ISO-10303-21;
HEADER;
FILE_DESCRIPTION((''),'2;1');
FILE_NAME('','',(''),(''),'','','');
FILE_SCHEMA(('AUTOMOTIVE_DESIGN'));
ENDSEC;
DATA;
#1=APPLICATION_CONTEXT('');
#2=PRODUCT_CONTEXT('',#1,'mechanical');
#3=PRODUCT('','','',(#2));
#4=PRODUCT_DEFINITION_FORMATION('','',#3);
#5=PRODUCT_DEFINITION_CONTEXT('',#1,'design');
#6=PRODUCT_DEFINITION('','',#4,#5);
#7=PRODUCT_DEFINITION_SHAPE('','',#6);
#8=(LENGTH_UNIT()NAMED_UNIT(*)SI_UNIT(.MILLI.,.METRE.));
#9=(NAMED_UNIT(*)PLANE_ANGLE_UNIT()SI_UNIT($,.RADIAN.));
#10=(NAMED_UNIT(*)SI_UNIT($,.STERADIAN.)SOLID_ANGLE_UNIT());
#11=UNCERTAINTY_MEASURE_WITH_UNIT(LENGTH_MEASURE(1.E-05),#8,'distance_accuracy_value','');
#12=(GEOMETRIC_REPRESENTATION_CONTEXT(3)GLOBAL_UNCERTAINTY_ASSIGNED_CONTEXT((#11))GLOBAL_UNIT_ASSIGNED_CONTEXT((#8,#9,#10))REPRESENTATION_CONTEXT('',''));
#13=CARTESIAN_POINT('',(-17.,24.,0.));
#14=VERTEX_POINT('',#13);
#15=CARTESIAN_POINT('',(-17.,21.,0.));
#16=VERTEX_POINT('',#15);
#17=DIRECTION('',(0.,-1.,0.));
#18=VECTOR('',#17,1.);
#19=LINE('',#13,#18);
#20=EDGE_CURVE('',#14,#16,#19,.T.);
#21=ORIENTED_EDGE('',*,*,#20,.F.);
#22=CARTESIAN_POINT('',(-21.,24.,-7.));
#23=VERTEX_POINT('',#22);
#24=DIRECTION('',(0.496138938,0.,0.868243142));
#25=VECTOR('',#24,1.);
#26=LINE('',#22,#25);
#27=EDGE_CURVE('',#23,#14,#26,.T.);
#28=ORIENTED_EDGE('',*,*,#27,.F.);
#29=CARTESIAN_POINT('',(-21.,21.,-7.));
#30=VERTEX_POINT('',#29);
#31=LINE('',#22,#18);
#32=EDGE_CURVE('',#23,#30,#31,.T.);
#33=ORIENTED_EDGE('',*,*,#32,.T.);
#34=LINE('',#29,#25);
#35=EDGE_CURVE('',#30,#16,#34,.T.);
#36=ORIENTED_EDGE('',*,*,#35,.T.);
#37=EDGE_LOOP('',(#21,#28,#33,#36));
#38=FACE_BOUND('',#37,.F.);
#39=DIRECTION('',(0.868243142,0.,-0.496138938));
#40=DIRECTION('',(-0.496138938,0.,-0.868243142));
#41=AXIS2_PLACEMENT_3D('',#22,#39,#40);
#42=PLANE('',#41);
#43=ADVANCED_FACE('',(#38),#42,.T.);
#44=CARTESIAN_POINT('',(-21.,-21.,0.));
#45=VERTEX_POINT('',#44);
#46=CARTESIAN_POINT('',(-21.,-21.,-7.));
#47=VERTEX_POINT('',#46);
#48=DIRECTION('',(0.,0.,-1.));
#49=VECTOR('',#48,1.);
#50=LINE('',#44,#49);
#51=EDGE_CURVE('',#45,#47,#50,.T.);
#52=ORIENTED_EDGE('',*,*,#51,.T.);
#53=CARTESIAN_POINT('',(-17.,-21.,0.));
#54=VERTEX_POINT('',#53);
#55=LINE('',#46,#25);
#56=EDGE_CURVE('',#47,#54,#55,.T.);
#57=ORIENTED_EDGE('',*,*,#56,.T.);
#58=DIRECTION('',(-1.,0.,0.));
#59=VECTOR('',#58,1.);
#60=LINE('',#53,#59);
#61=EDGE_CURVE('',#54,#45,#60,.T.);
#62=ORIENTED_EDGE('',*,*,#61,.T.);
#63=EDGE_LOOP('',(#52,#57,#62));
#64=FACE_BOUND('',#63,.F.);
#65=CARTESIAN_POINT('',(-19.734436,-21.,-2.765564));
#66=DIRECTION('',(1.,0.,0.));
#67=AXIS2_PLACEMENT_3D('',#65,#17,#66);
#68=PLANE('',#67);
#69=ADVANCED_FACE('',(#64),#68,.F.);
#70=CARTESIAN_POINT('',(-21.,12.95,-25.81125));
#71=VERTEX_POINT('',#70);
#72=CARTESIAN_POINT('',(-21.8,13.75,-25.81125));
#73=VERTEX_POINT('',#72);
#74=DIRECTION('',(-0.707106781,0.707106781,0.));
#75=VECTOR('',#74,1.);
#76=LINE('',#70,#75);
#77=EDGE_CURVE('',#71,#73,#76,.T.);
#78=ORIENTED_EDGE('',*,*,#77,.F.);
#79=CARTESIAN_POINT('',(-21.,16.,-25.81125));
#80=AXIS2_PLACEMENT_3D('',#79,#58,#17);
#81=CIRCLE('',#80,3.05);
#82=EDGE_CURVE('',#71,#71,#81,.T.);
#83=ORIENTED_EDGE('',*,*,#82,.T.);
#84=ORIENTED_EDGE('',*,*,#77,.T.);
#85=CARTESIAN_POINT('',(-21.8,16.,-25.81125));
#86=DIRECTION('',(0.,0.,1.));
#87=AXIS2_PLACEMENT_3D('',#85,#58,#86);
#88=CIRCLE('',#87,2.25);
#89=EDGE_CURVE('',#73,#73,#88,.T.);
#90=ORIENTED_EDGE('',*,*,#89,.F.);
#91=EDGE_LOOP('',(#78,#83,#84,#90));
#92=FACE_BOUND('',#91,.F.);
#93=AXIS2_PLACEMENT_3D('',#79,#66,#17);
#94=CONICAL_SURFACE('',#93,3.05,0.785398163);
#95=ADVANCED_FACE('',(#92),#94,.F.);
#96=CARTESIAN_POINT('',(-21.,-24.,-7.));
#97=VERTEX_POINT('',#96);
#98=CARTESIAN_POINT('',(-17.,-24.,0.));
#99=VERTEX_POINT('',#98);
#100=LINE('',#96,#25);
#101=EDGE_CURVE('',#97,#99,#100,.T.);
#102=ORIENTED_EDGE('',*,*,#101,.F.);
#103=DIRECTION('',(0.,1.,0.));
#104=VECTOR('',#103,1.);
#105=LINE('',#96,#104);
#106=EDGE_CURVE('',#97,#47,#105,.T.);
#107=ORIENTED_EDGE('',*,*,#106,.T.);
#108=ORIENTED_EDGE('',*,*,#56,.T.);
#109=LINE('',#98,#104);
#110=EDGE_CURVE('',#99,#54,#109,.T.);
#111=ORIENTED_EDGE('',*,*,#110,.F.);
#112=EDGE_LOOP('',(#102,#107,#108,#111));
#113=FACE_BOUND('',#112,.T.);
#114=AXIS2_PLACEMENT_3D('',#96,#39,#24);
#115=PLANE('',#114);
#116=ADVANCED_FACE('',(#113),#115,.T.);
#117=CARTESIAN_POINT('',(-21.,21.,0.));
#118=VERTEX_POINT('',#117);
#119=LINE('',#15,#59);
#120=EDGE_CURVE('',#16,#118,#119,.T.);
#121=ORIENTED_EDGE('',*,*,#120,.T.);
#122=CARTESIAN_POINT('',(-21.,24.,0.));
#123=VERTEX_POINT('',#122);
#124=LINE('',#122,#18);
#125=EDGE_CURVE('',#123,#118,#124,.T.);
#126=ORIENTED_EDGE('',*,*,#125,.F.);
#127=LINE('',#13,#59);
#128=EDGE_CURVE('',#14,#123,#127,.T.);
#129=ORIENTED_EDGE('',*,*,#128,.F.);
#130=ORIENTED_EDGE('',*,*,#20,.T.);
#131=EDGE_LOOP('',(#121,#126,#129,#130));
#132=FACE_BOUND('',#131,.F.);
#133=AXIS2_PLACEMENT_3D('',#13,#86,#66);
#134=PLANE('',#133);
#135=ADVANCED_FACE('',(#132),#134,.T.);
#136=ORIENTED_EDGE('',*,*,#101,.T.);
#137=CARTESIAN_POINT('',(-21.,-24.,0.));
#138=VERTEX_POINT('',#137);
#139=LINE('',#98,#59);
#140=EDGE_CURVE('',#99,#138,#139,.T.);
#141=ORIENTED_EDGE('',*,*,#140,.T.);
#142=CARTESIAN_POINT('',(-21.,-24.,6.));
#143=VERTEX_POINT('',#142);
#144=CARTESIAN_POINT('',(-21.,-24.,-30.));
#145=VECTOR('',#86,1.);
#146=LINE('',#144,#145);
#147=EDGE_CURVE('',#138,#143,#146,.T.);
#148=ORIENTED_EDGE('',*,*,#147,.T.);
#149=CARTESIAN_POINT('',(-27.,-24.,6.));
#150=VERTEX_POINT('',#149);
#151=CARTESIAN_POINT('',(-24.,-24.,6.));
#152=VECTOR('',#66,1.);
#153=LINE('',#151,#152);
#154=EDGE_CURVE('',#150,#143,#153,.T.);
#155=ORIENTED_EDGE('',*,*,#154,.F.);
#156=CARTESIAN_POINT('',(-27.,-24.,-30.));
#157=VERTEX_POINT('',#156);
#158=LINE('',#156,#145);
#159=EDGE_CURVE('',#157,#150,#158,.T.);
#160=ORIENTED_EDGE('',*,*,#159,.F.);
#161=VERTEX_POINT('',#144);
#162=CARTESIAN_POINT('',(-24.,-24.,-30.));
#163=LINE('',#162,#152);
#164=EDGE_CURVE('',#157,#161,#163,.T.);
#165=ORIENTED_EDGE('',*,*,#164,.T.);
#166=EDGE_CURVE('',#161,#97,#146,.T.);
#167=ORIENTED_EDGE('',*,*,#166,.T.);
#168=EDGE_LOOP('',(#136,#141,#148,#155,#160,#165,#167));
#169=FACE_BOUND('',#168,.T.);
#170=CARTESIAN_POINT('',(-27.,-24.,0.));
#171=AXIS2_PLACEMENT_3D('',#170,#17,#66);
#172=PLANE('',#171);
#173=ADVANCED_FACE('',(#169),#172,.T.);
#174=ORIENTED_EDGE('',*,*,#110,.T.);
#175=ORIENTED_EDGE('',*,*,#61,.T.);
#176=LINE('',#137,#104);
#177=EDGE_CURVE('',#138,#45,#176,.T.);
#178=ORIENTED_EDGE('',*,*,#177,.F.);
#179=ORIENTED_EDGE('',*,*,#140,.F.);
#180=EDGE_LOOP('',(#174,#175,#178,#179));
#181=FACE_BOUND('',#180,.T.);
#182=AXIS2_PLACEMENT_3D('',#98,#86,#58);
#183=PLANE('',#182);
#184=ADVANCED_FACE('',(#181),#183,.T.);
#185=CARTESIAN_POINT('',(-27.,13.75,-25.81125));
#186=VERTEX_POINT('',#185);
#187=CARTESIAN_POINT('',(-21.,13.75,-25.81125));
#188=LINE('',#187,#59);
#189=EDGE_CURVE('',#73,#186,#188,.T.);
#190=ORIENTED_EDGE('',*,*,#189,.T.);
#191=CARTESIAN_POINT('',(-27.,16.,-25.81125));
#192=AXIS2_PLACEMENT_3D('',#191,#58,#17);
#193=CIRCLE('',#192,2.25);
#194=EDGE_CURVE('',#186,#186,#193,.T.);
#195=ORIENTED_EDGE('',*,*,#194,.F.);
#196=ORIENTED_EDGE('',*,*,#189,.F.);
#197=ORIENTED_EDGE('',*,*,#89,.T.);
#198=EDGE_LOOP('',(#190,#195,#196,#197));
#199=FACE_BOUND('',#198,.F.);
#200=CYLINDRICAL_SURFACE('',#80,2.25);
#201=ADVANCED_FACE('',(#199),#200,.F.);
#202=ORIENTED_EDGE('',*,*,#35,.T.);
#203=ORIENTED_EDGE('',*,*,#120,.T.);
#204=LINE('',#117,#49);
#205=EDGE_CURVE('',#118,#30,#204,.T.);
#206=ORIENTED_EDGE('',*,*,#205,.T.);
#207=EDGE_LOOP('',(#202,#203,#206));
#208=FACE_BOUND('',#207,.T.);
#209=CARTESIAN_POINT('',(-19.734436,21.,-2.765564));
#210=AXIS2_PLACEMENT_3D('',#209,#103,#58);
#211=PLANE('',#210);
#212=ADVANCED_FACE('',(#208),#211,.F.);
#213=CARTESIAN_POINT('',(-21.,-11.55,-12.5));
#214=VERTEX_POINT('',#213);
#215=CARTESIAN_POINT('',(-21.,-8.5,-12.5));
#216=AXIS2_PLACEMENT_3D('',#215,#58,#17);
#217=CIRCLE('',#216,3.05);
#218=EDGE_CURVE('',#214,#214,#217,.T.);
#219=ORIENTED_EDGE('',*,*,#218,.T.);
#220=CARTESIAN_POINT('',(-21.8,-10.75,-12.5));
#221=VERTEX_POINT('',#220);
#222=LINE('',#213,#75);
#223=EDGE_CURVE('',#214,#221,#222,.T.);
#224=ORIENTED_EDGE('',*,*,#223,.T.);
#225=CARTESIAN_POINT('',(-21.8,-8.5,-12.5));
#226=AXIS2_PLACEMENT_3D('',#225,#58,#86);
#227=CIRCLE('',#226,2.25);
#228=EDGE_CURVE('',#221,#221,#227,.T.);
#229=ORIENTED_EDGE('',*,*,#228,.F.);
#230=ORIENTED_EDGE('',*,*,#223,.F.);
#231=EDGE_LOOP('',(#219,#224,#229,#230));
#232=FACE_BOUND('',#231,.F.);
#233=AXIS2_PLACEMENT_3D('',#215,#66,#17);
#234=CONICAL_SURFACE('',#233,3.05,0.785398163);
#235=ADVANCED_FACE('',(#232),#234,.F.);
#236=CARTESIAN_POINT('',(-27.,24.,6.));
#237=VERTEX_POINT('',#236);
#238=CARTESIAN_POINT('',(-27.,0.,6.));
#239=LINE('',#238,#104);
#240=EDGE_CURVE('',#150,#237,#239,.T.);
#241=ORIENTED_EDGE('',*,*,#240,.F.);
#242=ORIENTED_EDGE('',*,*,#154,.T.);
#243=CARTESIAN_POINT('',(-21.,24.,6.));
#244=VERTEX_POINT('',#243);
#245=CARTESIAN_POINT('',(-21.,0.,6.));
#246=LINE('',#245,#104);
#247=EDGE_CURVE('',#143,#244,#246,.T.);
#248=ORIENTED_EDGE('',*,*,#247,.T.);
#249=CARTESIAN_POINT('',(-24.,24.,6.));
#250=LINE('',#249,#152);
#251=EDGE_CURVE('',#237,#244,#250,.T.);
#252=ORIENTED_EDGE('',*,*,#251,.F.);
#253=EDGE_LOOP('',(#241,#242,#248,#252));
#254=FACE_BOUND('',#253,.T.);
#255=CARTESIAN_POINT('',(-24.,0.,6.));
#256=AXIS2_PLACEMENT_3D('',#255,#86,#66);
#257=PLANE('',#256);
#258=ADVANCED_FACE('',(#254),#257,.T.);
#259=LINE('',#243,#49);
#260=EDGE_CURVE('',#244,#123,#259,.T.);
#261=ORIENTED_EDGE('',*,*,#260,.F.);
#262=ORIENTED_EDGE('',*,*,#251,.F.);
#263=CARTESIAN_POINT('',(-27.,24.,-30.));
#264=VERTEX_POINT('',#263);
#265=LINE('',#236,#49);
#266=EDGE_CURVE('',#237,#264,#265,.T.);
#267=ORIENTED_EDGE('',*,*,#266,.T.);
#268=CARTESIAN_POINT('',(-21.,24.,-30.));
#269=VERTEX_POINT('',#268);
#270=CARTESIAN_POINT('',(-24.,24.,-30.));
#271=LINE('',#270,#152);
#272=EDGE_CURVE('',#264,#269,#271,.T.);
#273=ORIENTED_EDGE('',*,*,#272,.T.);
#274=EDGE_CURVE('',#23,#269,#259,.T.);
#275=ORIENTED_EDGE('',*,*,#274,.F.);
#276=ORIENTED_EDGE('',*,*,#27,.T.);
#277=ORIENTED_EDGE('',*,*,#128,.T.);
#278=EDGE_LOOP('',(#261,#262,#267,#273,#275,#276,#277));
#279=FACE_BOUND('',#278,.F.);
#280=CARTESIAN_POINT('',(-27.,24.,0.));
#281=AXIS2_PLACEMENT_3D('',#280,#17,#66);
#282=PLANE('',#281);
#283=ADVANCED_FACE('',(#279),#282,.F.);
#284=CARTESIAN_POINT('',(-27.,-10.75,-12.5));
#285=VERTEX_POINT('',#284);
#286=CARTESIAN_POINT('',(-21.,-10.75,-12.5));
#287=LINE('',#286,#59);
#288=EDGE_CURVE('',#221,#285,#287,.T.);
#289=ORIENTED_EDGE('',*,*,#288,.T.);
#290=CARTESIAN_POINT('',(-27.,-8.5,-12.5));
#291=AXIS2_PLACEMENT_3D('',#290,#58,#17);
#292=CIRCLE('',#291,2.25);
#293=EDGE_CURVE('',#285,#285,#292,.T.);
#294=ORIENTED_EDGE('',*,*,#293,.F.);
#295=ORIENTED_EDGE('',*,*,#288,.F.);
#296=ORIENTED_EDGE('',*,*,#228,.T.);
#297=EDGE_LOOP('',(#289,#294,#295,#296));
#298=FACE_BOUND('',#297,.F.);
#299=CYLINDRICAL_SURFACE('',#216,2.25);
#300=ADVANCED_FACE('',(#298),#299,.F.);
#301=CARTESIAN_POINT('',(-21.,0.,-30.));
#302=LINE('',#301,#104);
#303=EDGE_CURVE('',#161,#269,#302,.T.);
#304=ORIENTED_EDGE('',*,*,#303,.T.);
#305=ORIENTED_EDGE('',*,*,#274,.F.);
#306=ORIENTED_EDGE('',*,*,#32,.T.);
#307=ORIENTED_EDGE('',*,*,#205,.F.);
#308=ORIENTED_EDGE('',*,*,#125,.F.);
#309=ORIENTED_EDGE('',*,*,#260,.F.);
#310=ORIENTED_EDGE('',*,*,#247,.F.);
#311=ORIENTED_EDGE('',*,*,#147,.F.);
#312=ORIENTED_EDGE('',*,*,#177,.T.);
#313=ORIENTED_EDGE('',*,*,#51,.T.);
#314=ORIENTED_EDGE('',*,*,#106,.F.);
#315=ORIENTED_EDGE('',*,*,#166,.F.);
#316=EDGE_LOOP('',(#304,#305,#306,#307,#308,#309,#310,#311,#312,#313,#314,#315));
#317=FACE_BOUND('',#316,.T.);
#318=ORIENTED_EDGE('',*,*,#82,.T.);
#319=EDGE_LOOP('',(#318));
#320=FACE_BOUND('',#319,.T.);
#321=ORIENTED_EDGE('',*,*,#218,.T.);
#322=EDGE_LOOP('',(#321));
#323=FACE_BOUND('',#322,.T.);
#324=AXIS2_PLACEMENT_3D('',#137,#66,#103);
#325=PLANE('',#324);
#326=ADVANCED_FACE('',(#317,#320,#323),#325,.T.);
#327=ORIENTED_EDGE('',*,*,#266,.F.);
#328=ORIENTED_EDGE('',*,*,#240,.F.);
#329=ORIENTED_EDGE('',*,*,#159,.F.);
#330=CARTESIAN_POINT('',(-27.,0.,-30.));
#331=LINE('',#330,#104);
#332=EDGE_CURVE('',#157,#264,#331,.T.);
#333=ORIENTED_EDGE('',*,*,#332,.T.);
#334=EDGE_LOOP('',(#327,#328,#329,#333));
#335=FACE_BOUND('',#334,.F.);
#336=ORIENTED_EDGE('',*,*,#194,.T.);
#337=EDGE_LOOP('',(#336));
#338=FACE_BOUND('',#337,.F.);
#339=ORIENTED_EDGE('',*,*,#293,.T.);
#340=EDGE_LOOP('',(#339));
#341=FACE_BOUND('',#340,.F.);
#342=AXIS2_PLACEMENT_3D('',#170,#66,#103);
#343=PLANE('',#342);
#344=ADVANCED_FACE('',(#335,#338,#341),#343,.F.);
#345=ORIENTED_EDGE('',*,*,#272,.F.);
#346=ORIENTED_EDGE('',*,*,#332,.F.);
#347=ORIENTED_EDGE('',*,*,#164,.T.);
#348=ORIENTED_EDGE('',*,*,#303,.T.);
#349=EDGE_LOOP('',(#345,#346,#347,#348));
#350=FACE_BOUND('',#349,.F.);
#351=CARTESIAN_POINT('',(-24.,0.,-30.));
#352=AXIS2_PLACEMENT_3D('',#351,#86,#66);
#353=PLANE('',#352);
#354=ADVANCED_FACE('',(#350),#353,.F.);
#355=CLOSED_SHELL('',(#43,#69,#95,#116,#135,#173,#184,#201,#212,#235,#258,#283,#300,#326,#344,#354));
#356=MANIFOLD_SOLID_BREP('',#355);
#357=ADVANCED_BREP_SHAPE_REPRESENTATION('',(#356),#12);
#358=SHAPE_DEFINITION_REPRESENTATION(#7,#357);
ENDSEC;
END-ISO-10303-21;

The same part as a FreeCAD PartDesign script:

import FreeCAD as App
import Part
import Sketcher

V = App.Vector
Q = App.Units.Quantity


def add_polygon(sketch, points):
    """Adds a closed chain of lines whose ends are joined by coincident constraints."""
    first, n = sketch.GeometryCount, len(points)
    for a, b in zip(points, points[1:] + points[:1]):
        sketch.addGeometry(Part.LineSegment(App.Vector(*a, 0), App.Vector(*b, 0)), False)
    for i in range(n):
        sketch.addConstraint(Sketcher.Constraint("Coincident", first + i, 2, first + (i + 1) % n, 1))

doc = App.newDocument("Part")
params = doc.addObject("Spreadsheet::Sheet", "Params")
for row, (alias, value) in enumerate([
    ("sketch1_width", "6 mm"),
    ("sketch1_height", "48 mm"),
    ("pad1_length", "6 mm"),
    ("pad1_length2", "30 mm"),
    ("sketch2_width", "4 mm"),
    ("sketch2_height", "7 mm"),
    ("pad2_length", "3 mm"),
    ("sketch3_diameter", "4.5 mm"),
    ("hole_diameter", "4.5 mm"),
    ("hole_depth", "25 mm"),
    ("hole_csink_diameter", "6.1 mm"),
], start=1):
    params.set(f"A{row}", alias)
    params.set(f"B{row}", "=" + value)
    params.setAlias(f"B{row}", alias)

body = doc.addObject("PartDesign::Body", "Body")

# Sketch on XY plane
sketch1 = body.newObject("Sketcher::SketchObject", "Sketch")
sketch1.AttachmentSupport = (doc.getObject("XY_Plane"), [""])
sketch1.MapMode = "FlatFace"
add_polygon(sketch1, [(-27, 24), (-27, -24), (-21, -24), (-21, 24)])  # lines 0-3
sketch1.addConstraint(Sketcher.Constraint("Vertical", 0))
sketch1.addConstraint(Sketcher.Constraint("Horizontal", 1))
sketch1.addConstraint(Sketcher.Constraint("Vertical", 2))
sketch1.addConstraint(Sketcher.Constraint("Horizontal", 3))
sketch1.addConstraint(Sketcher.Constraint("DistanceX", 1, 1, 1, 2, Q("6 mm")))
sketch1.addConstraint(Sketcher.Constraint("DistanceY", 0, 2, 0, 1, Q("48 mm")))
sketch1.addConstraint(Sketcher.Constraint("DistanceX", 0, 2, -1, 1, Q("27 mm")))
sketch1.addConstraint(Sketcher.Constraint("DistanceY", 0, 2, -1, 1, Q("24 mm")))
sketch1.setExpression("Constraints[8]", "Params.sketch1_width")
sketch1.setExpression("Constraints[9]", "Params.sketch1_height")
pad1 = body.newObject("PartDesign::Pad", "Pad")
pad1.Profile = sketch1
pad1.Type = "TwoLengths"
pad1.setExpression("Length", "Params.pad1_length")
pad1.setExpression("Length2", "Params.pad1_length2")

# Sketch on XZ plane
sketch2 = body.newObject("Sketcher::SketchObject", "Sketch001")
sketch2.AttachmentSupport = (doc.getObject("XZ_Plane"), [""])
sketch2.MapMode = "FlatFace"
sketch2.AttachmentOffset = App.Placement(V(0, 0, 24), App.Rotation())
add_polygon(sketch2, [(-21, 0), (-21, -7), (-17, 0)])  # lines 0-2
sketch2.addConstraint(Sketcher.Constraint("Vertical", 0))
sketch2.addConstraint(Sketcher.Constraint("Horizontal", 2))
sketch2.addConstraint(Sketcher.Constraint("PointOnObject", 1, 2, -1))
sketch2.addConstraint(Sketcher.Constraint("DistanceX", 2, 2, 2, 1, Q("4 mm")))
sketch2.addConstraint(Sketcher.Constraint("DistanceY", 0, 2, 0, 1, Q("7 mm")))
sketch2.addConstraint(Sketcher.Constraint("DistanceX", 0, 2, -1, 1, Q("21 mm")))
sketch2.setExpression("Constraints[6]", "Params.sketch2_width")
sketch2.setExpression("Constraints[7]", "Params.sketch2_height")
pad2 = body.newObject("PartDesign::Pad", "Pad001")
pad2.Profile = sketch2
pad2.setExpression("Length", "Params.pad2_length")
pad2.Reversed = True
doc.recompute()

mirrored = body.newObject("PartDesign::Mirrored", "Mirrored")
mirrored.Originals = [pad2]
mirrored.MirrorPlane = (doc.getObject("XZ_Plane"), [""])
body.Tip = mirrored

# Sketch on YZ plane
sketch3 = body.newObject("Sketcher::SketchObject", "Sketch002")
sketch3.AttachmentSupport = (doc.getObject("YZ_Plane"), [""])
sketch3.MapMode = "FlatFace"
sketch3.AttachmentOffset = App.Placement(V(0, 0, -21), App.Rotation())
sketch3.addGeometry(Part.Circle(V(-8.5, -12.5, 0), V(0, 0, 1), 2.25), False)
sketch3.addGeometry(Part.Circle(V(16, -25.81125, 0), V(0, 0, 1), 2.25), False)
sketch3.addConstraint(Sketcher.Constraint("Equal", 0, 1))
sketch3.addConstraint(Sketcher.Constraint("Diameter", 0, Q("4.5 mm")))
sketch3.addConstraint(Sketcher.Constraint("DistanceX", -1, 1, 1, 3, Q("16 mm")))
sketch3.addConstraint(Sketcher.Constraint("DistanceX", 0, 3, -1, 1, Q("8.5 mm")))
sketch3.addConstraint(Sketcher.Constraint("DistanceY", 0, 3, -1, 1, Q("12.5 mm")))
sketch3.addConstraint(Sketcher.Constraint("DistanceY", 1, 3, -1, 1, Q("25.81125 mm")))
sketch3.setExpression("Constraints[1]", "Params.sketch3_diameter")
doc.recompute()
hole = body.newObject("PartDesign::Hole", "Hole")
hole.Profile = sketch3
hole.ThreadType = "None"
hole.setExpression("Diameter", "Params.hole_diameter")
hole.DepthType = "Dimension"
hole.setExpression("Depth", "Params.hole_depth")
hole.DrillPoint = "Flat"
hole.HoleCutType = "Countersink"
hole.setExpression("HoleCutDiameter", "Params.hole_csink_diameter")
hole.HoleCutCountersinkAngle = 90

doc.recompute()
